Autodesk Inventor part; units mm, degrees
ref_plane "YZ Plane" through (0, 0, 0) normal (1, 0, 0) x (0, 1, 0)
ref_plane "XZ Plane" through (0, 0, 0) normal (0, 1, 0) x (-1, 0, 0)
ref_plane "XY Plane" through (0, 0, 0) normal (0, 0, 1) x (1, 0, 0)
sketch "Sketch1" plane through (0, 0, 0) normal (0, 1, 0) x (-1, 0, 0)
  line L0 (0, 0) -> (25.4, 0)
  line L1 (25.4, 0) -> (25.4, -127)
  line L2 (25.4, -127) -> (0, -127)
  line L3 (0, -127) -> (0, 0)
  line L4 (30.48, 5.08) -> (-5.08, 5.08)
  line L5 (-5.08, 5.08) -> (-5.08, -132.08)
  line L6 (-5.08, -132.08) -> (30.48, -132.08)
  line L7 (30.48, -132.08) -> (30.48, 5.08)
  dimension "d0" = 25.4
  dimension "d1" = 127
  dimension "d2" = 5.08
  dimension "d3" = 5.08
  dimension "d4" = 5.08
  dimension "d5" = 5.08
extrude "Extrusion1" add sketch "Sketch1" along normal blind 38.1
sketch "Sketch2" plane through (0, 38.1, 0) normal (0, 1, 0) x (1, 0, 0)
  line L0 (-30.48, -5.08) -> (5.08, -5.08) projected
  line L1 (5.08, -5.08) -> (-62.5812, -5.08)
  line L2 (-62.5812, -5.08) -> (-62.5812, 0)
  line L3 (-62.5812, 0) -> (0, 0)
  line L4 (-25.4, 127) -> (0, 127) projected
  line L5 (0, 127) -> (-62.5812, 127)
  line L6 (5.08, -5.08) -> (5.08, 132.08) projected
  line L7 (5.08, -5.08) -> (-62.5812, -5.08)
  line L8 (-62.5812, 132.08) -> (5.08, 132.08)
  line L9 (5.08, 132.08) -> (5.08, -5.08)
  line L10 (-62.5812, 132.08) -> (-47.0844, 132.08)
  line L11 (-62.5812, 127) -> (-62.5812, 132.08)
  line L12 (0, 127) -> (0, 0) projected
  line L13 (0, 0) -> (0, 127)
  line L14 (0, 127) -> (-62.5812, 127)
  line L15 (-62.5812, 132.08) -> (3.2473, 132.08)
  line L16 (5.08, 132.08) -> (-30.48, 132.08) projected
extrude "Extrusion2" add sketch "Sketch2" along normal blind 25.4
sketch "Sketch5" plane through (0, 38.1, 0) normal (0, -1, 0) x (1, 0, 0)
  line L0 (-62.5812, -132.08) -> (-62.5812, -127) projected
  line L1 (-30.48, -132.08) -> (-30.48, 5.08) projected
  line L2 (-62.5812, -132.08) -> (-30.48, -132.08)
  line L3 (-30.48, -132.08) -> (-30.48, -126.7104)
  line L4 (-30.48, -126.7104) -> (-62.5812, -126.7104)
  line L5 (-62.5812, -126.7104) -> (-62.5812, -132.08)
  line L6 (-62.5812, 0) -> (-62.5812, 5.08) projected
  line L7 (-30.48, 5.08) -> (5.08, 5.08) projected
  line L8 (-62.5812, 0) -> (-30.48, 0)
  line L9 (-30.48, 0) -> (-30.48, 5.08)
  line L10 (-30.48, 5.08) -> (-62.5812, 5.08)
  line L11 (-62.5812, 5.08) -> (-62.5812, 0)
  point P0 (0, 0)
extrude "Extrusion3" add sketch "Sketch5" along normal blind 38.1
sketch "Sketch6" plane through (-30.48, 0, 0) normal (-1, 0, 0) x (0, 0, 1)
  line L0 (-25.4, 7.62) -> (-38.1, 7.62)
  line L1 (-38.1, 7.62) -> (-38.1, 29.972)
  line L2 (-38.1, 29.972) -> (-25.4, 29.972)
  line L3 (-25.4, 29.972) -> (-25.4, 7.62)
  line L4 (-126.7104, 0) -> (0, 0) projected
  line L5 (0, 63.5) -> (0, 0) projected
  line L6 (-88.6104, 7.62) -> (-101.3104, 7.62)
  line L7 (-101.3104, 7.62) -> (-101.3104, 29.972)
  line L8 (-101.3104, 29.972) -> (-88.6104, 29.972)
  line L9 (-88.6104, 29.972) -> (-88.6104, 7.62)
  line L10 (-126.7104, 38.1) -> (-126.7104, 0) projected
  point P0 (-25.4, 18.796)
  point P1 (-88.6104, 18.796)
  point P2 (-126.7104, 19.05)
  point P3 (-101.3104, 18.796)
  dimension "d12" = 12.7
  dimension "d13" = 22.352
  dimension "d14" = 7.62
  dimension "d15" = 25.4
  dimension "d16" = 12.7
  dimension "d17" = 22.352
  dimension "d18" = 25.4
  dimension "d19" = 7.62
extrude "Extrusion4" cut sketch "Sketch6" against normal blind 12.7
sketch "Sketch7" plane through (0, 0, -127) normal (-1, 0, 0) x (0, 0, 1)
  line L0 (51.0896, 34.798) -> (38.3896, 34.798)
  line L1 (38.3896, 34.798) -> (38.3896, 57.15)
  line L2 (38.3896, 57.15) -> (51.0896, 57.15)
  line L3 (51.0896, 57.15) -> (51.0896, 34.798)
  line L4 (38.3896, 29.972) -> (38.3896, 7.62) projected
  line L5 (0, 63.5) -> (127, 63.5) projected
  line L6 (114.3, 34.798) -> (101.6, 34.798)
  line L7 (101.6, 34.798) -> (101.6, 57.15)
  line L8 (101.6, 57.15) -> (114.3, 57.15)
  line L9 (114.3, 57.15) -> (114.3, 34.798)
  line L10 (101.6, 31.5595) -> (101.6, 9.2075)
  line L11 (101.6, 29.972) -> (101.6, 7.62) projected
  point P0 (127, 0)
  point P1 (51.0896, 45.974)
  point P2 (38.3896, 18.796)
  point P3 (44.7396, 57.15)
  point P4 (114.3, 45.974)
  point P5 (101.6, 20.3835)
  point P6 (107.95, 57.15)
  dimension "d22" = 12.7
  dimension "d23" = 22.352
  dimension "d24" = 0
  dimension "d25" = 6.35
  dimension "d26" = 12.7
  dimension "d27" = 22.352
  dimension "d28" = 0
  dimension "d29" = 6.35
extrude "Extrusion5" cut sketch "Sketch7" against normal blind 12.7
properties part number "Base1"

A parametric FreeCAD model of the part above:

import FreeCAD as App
import Part
import Sketcher
Q = App.Units.Quantity

doc = App.newDocument("Part")
body = doc.addObject("PartDesign::Body", "Body")

# Sketch on XZ plane
sketch1 = doc.addObject("Sketcher::SketchObject", "Sketch")
body.addObject(sketch1)
sketch1.AttachmentSupport = (doc.XZ_Plane, [""])
sketch1.MapMode = "FlatFace"
sketch1.addGeometry(Part.LineSegment(App.Vector(-30, -132, 0), App.Vector(-30, 5, 0)), False)
sketch1.addGeometry(Part.LineSegment(App.Vector(-30, 5, 0), App.Vector(5, 5, 0)), False)
sketch1.addGeometry(Part.LineSegment(App.Vector(5, 5, 0), App.Vector(5, -132, 0)), False)
sketch1.addGeometry(Part.LineSegment(App.Vector(5, -132, 0), App.Vector(-30, -132, 0)), False)
sketch1.addGeometry(Part.LineSegment(App.Vector(0, -127, 0), App.Vector(0, 0, 0)), False)
sketch1.addGeometry(Part.LineSegment(App.Vector(0, 0, 0), App.Vector(-25, 0, 0)), False)
sketch1.addGeometry(Part.LineSegment(App.Vector(-25, 0, 0), App.Vector(-25, -127, 0)), False)
sketch1.addGeometry(Part.LineSegment(App.Vector(-25, -127, 0), App.Vector(0, -127, 0)), False)
sketch1.addConstraint(Sketcher.Constraint("Coincident", 0, 2, 1, 1))
sketch1.addConstraint(Sketcher.Constraint("Coincident", 1, 2, 2, 1))
sketch1.addConstraint(Sketcher.Constraint("Coincident", 2, 2, 3, 1))
sketch1.addConstraint(Sketcher.Constraint("Coincident", 3, 2, 0, 1))
sketch1.addConstraint(Sketcher.Constraint("Coincident", 4, 2, 5, 1))
sketch1.addConstraint(Sketcher.Constraint("Coincident", 5, 2, 6, 1))
sketch1.addConstraint(Sketcher.Constraint("Coincident", 6, 2, 7, 1))
sketch1.addConstraint(Sketcher.Constraint("Coincident", 7, 2, 4, 1))
sketch1.addConstraint(Sketcher.Constraint("Vertical", 0))
sketch1.addConstraint(Sketcher.Constraint("Horizontal", 1))
sketch1.addConstraint(Sketcher.Constraint("Vertical", 2))
sketch1.addConstraint(Sketcher.Constraint("Horizontal", 3))
sketch1.addConstraint(Sketcher.Constraint("Vertical", 4))
sketch1.addConstraint(Sketcher.Constraint("Horizontal", 5))
sketch1.addConstraint(Sketcher.Constraint("Vertical", 6))
sketch1.addConstraint(Sketcher.Constraint("Horizontal", 7))
sketch1.addConstraint(Sketcher.Constraint("Coincident", 4, 2, -1, 1))
sketch1.addConstraint(Sketcher.Constraint("DistanceX", 5, 2, 5, 1, Q("1 in")))
sketch1.addConstraint(Sketcher.Constraint("DistanceY", 4, 1, 4, 2, Q("5 in")))
sketch1.addConstraint(Sketcher.Constraint("DistanceY", -1, 1, 0, 2, Q("0.2 in")))
sketch1.addConstraint(Sketcher.Constraint("DistanceX", -1, 1, 1, 2, Q("0.2 in")))
sketch1.addConstraint(Sketcher.Constraint("DistanceX", 0, 2, 5, 2, Q("0.2 in")))
sketch1.addConstraint(Sketcher.Constraint("DistanceY", 3, 2, 6, 2, Q("0.2 in")))
pad1 = doc.addObject("PartDesign::Pad", "Pad")
body.addObject(pad1)
pad1.Profile = sketch1
pad1.Length = Q("1.5 in")
pad1.Reversed = True

# Sketch on XZ plane
sketch2 = doc.addObject("Sketcher::SketchObject", "Sketch001")
body.addObject(sketch2)
sketch2.AttachmentSupport = (doc.XZ_Plane, [""])
sketch2.MapMode = "FlatFace"
sketch2.AttachmentOffset = App.Placement(App.Vector(0, 0, -1.5 * 25.4), App.Rotation())
sketch2.addGeometry(Part.LineSegment(App.Vector(-63, 5, 0), App.Vector(5, 5, 0)), False)
sketch2.addGeometry(Part.LineSegment(App.Vector(5, 5, 0), App.Vector(5, -132, 0)), False)
sketch2.addGeometry(Part.LineSegment(App.Vector(5, -132, 0), App.Vector(-63, -132, 0)), False)
sketch2.addGeometry(Part.LineSegment(App.Vector(-63, -132, 0), App.Vector(-63, -127, 0)), False)
sketch2.addGeometry(Part.LineSegment(App.Vector(-63, -127, 0), App.Vector(0, -127, 0)), False)
sketch2.addGeometry(Part.LineSegment(App.Vector(0, -127, 0), App.Vector(0, 0, 0)), False)
sketch2.addGeometry(Part.LineSegment(App.Vector(0, 0, 0), App.Vector(-63, 0, 0)), False)
sketch2.addGeometry(Part.LineSegment(App.Vector(-63, 0, 0), App.Vector(-63, 5, 0)), False)
sketch2.addConstraint(Sketcher.Constraint("Coincident", 0, 2, 1, 1))
sketch2.addConstraint(Sketcher.Constraint("Coincident", 1, 2, 2, 1))
sketch2.addConstraint(Sketcher.Constraint("Coincident", 2, 2, 3, 1))
sketch2.addConstraint(Sketcher.Constraint("Coincident", 3, 2, 4, 1))
sketch2.addConstraint(Sketcher.Constraint("Coincident", 4, 2, 5, 1))
sketch2.addConstraint(Sketcher.Constraint("Coincident", 5, 2, 6, 1))
sketch2.addConstraint(Sketcher.Constraint("Coincident", 6, 2, 7, 1))
sketch2.addConstraint(Sketcher.Constraint("Coincident", 7, 2, 0, 1))
sketch2.addConstraint(Sketcher.Constraint("Horizontal", 0))
sketch2.addConstraint(Sketcher.Constraint("Vertical", 1))
sketch2.addConstraint(Sketcher.Constraint("Horizontal", 2))
sketch2.addConstraint(Sketcher.Constraint("Vertical", 3))
sketch2.addConstraint(Sketcher.Constraint("Horizontal", 4))
sketch2.addConstraint(Sketcher.Constraint("Vertical", 5))
sketch2.addConstraint(Sketcher.Constraint("Horizontal", 6))
sketch2.addConstraint(Sketcher.Constraint("Vertical", 7))
sketch2.addConstraint(Sketcher.Constraint("Coincident", 5, 2, -1, 1))
sketch2.addConstraint(Sketcher.Constraint("Vertical", 3, 2, 6, 2))
sketch2.addConstraint(Sketcher.Constraint("Equal", 3, 7))
sketch2.addConstraint(Sketcher.Constraint("DistanceY", 5, 1, 5, 2, Q("5 in")))
sketch2.addConstraint(Sketcher.Constraint("DistanceY", 1, 2, 1, 1, Q("5.4 in")))
sketch2.addConstraint(Sketcher.Constraint("DistanceX", -1, 1, 0, 2, Q("0.2 in")))
sketch2.addConstraint(Sketcher.Constraint("DistanceX", 0, 1, 0, 2, Q("67.6612 mm")))
pad2 = doc.addObject("PartDesign::Pad", "Pad001")
body.addObject(pad2)
pad2.Profile = sketch2
pad2.Length = Q("1 in")
pad2.Reversed = True

# Sketch on XZ plane
sketch3 = doc.addObject("Sketcher::SketchObject", "Sketch002")
body.addObject(sketch3)
sketch3.AttachmentSupport = (doc.XZ_Plane, [""])
sketch3.MapMode = "FlatFace"
sketch3.AttachmentOffset = App.Placement(App.Vector(0, 0, -1.5 * 25.4), App.Rotation())
sketch3.addGeometry(Part.LineSegment(App.Vector(-63, 0, 0), App.Vector(-30, 0, 0)), False)
sketch3.addGeometry(Part.LineSegment(App.Vector(-30, 0, 0), App.Vector(-30, 5, 0)), False)
sketch3.addGeometry(Part.LineSegment(App.Vector(-30, 5, 0), App.Vector(-63, 5, 0)), False)
sketch3.addGeometry(Part.LineSegment(App.Vector(-63, 5, 0), App.Vector(-63, 0, 0)), False)
sketch3.addGeometry(Part.LineSegment(App.Vector(-63, -127, 0), App.Vector(-63, -132, 0)), False)
sketch3.addGeometry(Part.LineSegment(App.Vector(-63, -132, 0), App.Vector(-30, -132, 0)), False)
sketch3.addGeometry(Part.LineSegment(App.Vector(-30, -132, 0), App.Vector(-30, -127, 0)), False)
sketch3.addGeometry(Part.LineSegment(App.Vector(-30, -127, 0), App.Vector(-63, -127, 0)), False)
sketch3.addConstraint(Sketcher.Constraint("Coincident", 0, 2, 1, 1))
sketch3.addConstraint(Sketcher.Constraint("Coincident", 1, 2, 2, 1))
sketch3.addConstraint(Sketcher.Constraint("Coincident", 2, 2, 3, 1))
sketch3.addConstraint(Sketcher.Constraint("Coincident", 3, 2, 0, 1))
sketch3.addConstraint(Sketcher.Constraint("Coincident", 4, 2, 5, 1))
sketch3.addConstraint(Sketcher.Constraint("Coincident", 5, 2, 6, 1))
sketch3.addConstraint(Sketcher.Constraint("Coincident", 6, 2, 7, 1))
sketch3.addConstraint(Sketcher.Constraint("Coincident", 7, 2, 4, 1))
sketch3.addConstraint(Sketcher.Constraint("Horizontal", 0))
sketch3.addConstraint(Sketcher.Constraint("Vertical", 1))
sketch3.addConstraint(Sketcher.Constraint("Horizontal", 2))
sketch3.addConstraint(Sketcher.Constraint("Vertical", 3))
sketch3.addConstraint(Sketcher.Constraint("Vertical", 4))
sketch3.addConstraint(Sketcher.Constraint("Horizontal", 5))
sketch3.addConstraint(Sketcher.Constraint("Vertical", 6))
sketch3.addConstraint(Sketcher.Constraint("Horizontal", 7))
sketch3.addConstraint(Sketcher.Constraint("PointOnObject", 0, 2, -1))
sketch3.addConstraint(Sketcher.Constraint("Vertical", 3, 2, 4, 2))
sketch3.addConstraint(Sketcher.Constraint("Vertical", 1, 2, 5, 2))
sketch3.addConstraint(Sketcher.Constraint("DistanceY", 1, 1, 1, 2, Q("0.2 in")))
sketch3.addConstraint(Sketcher.Constraint("DistanceX", 0, 2, -1, 1, Q("1.2 in")))
sketch3.addConstraint(Sketcher.Constraint("DistanceY", 4, 2, -1, 1, Q("5.2 in")))
sketch3.addConstraint(Sketcher.Constraint("DistanceY", 4, 2, 4, 1, Q("0.2114 in")))
sketch3.addConstraint(Sketcher.Constraint("DistanceX", 0, 1, 0, 2, Q("32.1012 mm")))
pad3 = doc.addObject("PartDesign::Pad", "Pad002")
body.addObject(pad3)
pad3.Profile = sketch3
pad3.Length = Q("1.5 in")

# Sketch on YZ plane
sketch4 = doc.addObject("Sketcher::SketchObject", "Sketch003")
body.addObject(sketch4)
sketch4.AttachmentSupport = (doc.YZ_Plane, [""])
sketch4.MapMode = "FlatFace"
sketch4.AttachmentOffset = App.Placement(App.Vector(0, 0, -1.2 * 25.4), App.Rotation())
sketch4.addGeometry(Part.LineSegment(App.Vector(8, -38, 0), App.Vector(8, -25, 0)), False)
sketch4.addGeometry(Part.LineSegment(App.Vector(8, -25, 0), App.Vector(30, -25, 0)), False)
sketch4.addGeometry(Part.LineSegment(App.Vector(30, -25, 0), App.Vector(30, -38, 0)), False)
sketch4.addGeometry(Part.LineSegment(App.Vector(30, -38, 0), App.Vector(8, -38, 0)), False)
sketch4.addGeometry(Part.LineSegment(App.Vector(8, -101, 0), App.Vector(8, -89, 0)), False)
sketch4.addGeometry(Part.LineSegment(App.Vector(8, -89, 0), App.Vector(30, -89, 0)), False)
sketch4.addGeometry(Part.LineSegment(App.Vector(30, -89, 0), App.Vector(30, -101, 0)), False)
sketch4.addGeometry(Part.LineSegment(App.Vector(30, -101, 0), App.Vector(8, -101, 0)), False)
sketch4.addConstraint(Sketcher.Constraint("Coincident", 0, 2, 1, 1))
sketch4.addConstraint(Sketcher.Constraint("Coincident", 1, 2, 2, 1))
sketch4.addConstraint(Sketcher.Constraint("Coincident", 2, 2, 3, 1))
sketch4.addConstraint(Sketcher.Constraint("Coincident", 3, 2, 0, 1))
sketch4.addConstraint(Sketcher.Constraint("Coincident", 4, 2, 5, 1))
sketch4.addConstraint(Sketcher.Constraint("Coincident", 5, 2, 6, 1))
sketch4.addConstraint(Sketcher.Constraint("Coincident", 6, 2, 7, 1))
sketch4.addConstraint(Sketcher.Constraint("Coincident", 7, 2, 4, 1))
sketch4.addConstraint(Sketcher.Constraint("Vertical", 0))
sketch4.addConstraint(Sketcher.Constraint("Horizontal", 1))
sketch4.addConstraint(Sketcher.Constraint("Vertical", 2))
sketch4.addConstraint(Sketcher.Constraint("Horizontal", 3))
sketch4.addConstraint(Sketcher.Constraint("Vertical", 4))
sketch4.addConstraint(Sketcher.Constraint("Horizontal", 5))
sketch4.addConstraint(Sketcher.Constraint("Vertical", 6))
sketch4.addConstraint(Sketcher.Constraint("Horizontal", 7))
sketch4.addConstraint(Sketcher.Constraint("Vertical", 3, 2, 4, 2))
sketch4.addConstraint(Sketcher.Constraint("Vertical", 2, 2, 5, 2))
sketch4.addConstraint(Sketcher.Constraint("Equal", 2, 4))
sketch4.addConstraint(Sketcher.Constraint("DistanceY", 0, 1, 0, 2, Q("0.5 in")))
sketch4.addConstraint(Sketcher.Constraint("DistanceY", 0, 2, -1, 1, Q("1 in")))
sketch4.addConstraint(Sketcher.Constraint("DistanceX", 1, 1, 1, 2, Q("0.88 in")))
sketch4.addConstraint(Sketcher.Constraint("DistanceX", -1, 1, 0, 2, Q("0.3 in")))
sketch4.addConstraint(Sketcher.Constraint("DistanceY", 4, 2, -1, 1, Q("3.4886 in")))
pocket1 = doc.addObject("PartDesign::Pocket", "Pocket")
body.addObject(pocket1)
pocket1.Profile = sketch4
pocket1.Length = Q("0.5 in")
pocket1.Reversed = True

# Sketch on YZ plane
sketch5 = doc.addObject("Sketcher::SketchObject", "Sketch004")
body.addObject(sketch5)
sketch5.AttachmentSupport = (doc.YZ_Plane, [""])
sketch5.MapMode = "FlatFace"
sketch5.addGeometry(Part.LineSegment(App.Vector(35, -89, 0), App.Vector(35, -76, 0)), False)
sketch5.addGeometry(Part.LineSegment(App.Vector(35, -76, 0), App.Vector(57, -76, 0)), False)
sketch5.addGeometry(Part.LineSegment(App.Vector(57, -76, 0), App.Vector(57, -89, 0)), False)
sketch5.addGeometry(Part.LineSegment(App.Vector(57, -89, 0), App.Vector(35, -89, 0)), False)
sketch5.addGeometry(Part.LineSegment(App.Vector(35, -25, 0), App.Vector(35, -13, 0)), False)
sketch5.addGeometry(Part.LineSegment(App.Vector(35, -13, 0), App.Vector(57, -13, 0)), False)
sketch5.addGeometry(Part.LineSegment(App.Vector(57, -13, 0), App.Vector(57, -25, 0)), False)
sketch5.addGeometry(Part.LineSegment(App.Vector(57, -25, 0), App.Vector(35, -25, 0)), False)
sketch5.addConstraint(Sketcher.Constraint("Coincident", 0, 2, 1, 1))
sketch5.addConstraint(Sketcher.Constraint("Coincident", 1, 2, 2, 1))
sketch5.addConstraint(Sketcher.Constraint("Coincident", 2, 2, 3, 1))
sketch5.addConstraint(Sketcher.Constraint("Coincident", 3, 2, 0, 1))
sketch5.addConstraint(Sketcher.Constraint("Coincident", 4, 2, 5, 1))
sketch5.addConstraint(Sketcher.Constraint("Coincident", 5, 2, 6, 1))
sketch5.addConstraint(Sketcher.Constraint("Coincident", 6, 2, 7, 1))
sketch5.addConstraint(Sketcher.Constraint("Coincident", 7, 2, 4, 1))
sketch5.addConstraint(Sketcher.Constraint("Vertical", 0))
sketch5.addConstraint(Sketcher.Constraint("Horizontal", 1))
sketch5.addConstraint(Sketcher.Constraint("Vertical", 2))
sketch5.addConstraint(Sketcher.Constraint("Horizontal", 3))
sketch5.addConstraint(Sketcher.Constraint("Vertical", 4))
sketch5.addConstraint(Sketcher.Constraint("Horizontal", 5))
sketch5.addConstraint(Sketcher.Constraint("Vertical", 6))
sketch5.addConstraint(Sketcher.Constraint("Horizontal", 7))
sketch5.addConstraint(Sketcher.Constraint("Vertical", 3, 2, 4, 2))
sketch5.addConstraint(Sketcher.Constraint("Vertical", 2, 2, 5, 2))
sketch5.addConstraint(Sketcher.Constraint("Equal", 2, 4))
sketch5.addConstraint(Sketcher.Constraint("DistanceY", 0, 1, 0, 2, Q("0.5 in")))
sketch5.addConstraint(Sketcher.Constraint("DistanceX", 1, 1, 1, 2, Q("0.88 in")))
sketch5.addConstraint(Sketcher.Constraint("DistanceY", 4, 2, -1, 1, Q("0.5 in")))
sketch5.addConstraint(Sketcher.Constraint("DistanceX", -1, 1, 0, 2, Q("1.37 in")))
sketch5.addConstraint(Sketcher.Constraint("DistanceY", 0, 2, -1, 1, Q("2.9886 in")))
pocket2 = doc.addObject("PartDesign::Pocket", "Pocket001")
body.addObject(pocket2)
pocket2.Profile = sketch5
pocket2.Length = Q("0.5 in")
pocket2.Reversed = True

doc.recompute()
